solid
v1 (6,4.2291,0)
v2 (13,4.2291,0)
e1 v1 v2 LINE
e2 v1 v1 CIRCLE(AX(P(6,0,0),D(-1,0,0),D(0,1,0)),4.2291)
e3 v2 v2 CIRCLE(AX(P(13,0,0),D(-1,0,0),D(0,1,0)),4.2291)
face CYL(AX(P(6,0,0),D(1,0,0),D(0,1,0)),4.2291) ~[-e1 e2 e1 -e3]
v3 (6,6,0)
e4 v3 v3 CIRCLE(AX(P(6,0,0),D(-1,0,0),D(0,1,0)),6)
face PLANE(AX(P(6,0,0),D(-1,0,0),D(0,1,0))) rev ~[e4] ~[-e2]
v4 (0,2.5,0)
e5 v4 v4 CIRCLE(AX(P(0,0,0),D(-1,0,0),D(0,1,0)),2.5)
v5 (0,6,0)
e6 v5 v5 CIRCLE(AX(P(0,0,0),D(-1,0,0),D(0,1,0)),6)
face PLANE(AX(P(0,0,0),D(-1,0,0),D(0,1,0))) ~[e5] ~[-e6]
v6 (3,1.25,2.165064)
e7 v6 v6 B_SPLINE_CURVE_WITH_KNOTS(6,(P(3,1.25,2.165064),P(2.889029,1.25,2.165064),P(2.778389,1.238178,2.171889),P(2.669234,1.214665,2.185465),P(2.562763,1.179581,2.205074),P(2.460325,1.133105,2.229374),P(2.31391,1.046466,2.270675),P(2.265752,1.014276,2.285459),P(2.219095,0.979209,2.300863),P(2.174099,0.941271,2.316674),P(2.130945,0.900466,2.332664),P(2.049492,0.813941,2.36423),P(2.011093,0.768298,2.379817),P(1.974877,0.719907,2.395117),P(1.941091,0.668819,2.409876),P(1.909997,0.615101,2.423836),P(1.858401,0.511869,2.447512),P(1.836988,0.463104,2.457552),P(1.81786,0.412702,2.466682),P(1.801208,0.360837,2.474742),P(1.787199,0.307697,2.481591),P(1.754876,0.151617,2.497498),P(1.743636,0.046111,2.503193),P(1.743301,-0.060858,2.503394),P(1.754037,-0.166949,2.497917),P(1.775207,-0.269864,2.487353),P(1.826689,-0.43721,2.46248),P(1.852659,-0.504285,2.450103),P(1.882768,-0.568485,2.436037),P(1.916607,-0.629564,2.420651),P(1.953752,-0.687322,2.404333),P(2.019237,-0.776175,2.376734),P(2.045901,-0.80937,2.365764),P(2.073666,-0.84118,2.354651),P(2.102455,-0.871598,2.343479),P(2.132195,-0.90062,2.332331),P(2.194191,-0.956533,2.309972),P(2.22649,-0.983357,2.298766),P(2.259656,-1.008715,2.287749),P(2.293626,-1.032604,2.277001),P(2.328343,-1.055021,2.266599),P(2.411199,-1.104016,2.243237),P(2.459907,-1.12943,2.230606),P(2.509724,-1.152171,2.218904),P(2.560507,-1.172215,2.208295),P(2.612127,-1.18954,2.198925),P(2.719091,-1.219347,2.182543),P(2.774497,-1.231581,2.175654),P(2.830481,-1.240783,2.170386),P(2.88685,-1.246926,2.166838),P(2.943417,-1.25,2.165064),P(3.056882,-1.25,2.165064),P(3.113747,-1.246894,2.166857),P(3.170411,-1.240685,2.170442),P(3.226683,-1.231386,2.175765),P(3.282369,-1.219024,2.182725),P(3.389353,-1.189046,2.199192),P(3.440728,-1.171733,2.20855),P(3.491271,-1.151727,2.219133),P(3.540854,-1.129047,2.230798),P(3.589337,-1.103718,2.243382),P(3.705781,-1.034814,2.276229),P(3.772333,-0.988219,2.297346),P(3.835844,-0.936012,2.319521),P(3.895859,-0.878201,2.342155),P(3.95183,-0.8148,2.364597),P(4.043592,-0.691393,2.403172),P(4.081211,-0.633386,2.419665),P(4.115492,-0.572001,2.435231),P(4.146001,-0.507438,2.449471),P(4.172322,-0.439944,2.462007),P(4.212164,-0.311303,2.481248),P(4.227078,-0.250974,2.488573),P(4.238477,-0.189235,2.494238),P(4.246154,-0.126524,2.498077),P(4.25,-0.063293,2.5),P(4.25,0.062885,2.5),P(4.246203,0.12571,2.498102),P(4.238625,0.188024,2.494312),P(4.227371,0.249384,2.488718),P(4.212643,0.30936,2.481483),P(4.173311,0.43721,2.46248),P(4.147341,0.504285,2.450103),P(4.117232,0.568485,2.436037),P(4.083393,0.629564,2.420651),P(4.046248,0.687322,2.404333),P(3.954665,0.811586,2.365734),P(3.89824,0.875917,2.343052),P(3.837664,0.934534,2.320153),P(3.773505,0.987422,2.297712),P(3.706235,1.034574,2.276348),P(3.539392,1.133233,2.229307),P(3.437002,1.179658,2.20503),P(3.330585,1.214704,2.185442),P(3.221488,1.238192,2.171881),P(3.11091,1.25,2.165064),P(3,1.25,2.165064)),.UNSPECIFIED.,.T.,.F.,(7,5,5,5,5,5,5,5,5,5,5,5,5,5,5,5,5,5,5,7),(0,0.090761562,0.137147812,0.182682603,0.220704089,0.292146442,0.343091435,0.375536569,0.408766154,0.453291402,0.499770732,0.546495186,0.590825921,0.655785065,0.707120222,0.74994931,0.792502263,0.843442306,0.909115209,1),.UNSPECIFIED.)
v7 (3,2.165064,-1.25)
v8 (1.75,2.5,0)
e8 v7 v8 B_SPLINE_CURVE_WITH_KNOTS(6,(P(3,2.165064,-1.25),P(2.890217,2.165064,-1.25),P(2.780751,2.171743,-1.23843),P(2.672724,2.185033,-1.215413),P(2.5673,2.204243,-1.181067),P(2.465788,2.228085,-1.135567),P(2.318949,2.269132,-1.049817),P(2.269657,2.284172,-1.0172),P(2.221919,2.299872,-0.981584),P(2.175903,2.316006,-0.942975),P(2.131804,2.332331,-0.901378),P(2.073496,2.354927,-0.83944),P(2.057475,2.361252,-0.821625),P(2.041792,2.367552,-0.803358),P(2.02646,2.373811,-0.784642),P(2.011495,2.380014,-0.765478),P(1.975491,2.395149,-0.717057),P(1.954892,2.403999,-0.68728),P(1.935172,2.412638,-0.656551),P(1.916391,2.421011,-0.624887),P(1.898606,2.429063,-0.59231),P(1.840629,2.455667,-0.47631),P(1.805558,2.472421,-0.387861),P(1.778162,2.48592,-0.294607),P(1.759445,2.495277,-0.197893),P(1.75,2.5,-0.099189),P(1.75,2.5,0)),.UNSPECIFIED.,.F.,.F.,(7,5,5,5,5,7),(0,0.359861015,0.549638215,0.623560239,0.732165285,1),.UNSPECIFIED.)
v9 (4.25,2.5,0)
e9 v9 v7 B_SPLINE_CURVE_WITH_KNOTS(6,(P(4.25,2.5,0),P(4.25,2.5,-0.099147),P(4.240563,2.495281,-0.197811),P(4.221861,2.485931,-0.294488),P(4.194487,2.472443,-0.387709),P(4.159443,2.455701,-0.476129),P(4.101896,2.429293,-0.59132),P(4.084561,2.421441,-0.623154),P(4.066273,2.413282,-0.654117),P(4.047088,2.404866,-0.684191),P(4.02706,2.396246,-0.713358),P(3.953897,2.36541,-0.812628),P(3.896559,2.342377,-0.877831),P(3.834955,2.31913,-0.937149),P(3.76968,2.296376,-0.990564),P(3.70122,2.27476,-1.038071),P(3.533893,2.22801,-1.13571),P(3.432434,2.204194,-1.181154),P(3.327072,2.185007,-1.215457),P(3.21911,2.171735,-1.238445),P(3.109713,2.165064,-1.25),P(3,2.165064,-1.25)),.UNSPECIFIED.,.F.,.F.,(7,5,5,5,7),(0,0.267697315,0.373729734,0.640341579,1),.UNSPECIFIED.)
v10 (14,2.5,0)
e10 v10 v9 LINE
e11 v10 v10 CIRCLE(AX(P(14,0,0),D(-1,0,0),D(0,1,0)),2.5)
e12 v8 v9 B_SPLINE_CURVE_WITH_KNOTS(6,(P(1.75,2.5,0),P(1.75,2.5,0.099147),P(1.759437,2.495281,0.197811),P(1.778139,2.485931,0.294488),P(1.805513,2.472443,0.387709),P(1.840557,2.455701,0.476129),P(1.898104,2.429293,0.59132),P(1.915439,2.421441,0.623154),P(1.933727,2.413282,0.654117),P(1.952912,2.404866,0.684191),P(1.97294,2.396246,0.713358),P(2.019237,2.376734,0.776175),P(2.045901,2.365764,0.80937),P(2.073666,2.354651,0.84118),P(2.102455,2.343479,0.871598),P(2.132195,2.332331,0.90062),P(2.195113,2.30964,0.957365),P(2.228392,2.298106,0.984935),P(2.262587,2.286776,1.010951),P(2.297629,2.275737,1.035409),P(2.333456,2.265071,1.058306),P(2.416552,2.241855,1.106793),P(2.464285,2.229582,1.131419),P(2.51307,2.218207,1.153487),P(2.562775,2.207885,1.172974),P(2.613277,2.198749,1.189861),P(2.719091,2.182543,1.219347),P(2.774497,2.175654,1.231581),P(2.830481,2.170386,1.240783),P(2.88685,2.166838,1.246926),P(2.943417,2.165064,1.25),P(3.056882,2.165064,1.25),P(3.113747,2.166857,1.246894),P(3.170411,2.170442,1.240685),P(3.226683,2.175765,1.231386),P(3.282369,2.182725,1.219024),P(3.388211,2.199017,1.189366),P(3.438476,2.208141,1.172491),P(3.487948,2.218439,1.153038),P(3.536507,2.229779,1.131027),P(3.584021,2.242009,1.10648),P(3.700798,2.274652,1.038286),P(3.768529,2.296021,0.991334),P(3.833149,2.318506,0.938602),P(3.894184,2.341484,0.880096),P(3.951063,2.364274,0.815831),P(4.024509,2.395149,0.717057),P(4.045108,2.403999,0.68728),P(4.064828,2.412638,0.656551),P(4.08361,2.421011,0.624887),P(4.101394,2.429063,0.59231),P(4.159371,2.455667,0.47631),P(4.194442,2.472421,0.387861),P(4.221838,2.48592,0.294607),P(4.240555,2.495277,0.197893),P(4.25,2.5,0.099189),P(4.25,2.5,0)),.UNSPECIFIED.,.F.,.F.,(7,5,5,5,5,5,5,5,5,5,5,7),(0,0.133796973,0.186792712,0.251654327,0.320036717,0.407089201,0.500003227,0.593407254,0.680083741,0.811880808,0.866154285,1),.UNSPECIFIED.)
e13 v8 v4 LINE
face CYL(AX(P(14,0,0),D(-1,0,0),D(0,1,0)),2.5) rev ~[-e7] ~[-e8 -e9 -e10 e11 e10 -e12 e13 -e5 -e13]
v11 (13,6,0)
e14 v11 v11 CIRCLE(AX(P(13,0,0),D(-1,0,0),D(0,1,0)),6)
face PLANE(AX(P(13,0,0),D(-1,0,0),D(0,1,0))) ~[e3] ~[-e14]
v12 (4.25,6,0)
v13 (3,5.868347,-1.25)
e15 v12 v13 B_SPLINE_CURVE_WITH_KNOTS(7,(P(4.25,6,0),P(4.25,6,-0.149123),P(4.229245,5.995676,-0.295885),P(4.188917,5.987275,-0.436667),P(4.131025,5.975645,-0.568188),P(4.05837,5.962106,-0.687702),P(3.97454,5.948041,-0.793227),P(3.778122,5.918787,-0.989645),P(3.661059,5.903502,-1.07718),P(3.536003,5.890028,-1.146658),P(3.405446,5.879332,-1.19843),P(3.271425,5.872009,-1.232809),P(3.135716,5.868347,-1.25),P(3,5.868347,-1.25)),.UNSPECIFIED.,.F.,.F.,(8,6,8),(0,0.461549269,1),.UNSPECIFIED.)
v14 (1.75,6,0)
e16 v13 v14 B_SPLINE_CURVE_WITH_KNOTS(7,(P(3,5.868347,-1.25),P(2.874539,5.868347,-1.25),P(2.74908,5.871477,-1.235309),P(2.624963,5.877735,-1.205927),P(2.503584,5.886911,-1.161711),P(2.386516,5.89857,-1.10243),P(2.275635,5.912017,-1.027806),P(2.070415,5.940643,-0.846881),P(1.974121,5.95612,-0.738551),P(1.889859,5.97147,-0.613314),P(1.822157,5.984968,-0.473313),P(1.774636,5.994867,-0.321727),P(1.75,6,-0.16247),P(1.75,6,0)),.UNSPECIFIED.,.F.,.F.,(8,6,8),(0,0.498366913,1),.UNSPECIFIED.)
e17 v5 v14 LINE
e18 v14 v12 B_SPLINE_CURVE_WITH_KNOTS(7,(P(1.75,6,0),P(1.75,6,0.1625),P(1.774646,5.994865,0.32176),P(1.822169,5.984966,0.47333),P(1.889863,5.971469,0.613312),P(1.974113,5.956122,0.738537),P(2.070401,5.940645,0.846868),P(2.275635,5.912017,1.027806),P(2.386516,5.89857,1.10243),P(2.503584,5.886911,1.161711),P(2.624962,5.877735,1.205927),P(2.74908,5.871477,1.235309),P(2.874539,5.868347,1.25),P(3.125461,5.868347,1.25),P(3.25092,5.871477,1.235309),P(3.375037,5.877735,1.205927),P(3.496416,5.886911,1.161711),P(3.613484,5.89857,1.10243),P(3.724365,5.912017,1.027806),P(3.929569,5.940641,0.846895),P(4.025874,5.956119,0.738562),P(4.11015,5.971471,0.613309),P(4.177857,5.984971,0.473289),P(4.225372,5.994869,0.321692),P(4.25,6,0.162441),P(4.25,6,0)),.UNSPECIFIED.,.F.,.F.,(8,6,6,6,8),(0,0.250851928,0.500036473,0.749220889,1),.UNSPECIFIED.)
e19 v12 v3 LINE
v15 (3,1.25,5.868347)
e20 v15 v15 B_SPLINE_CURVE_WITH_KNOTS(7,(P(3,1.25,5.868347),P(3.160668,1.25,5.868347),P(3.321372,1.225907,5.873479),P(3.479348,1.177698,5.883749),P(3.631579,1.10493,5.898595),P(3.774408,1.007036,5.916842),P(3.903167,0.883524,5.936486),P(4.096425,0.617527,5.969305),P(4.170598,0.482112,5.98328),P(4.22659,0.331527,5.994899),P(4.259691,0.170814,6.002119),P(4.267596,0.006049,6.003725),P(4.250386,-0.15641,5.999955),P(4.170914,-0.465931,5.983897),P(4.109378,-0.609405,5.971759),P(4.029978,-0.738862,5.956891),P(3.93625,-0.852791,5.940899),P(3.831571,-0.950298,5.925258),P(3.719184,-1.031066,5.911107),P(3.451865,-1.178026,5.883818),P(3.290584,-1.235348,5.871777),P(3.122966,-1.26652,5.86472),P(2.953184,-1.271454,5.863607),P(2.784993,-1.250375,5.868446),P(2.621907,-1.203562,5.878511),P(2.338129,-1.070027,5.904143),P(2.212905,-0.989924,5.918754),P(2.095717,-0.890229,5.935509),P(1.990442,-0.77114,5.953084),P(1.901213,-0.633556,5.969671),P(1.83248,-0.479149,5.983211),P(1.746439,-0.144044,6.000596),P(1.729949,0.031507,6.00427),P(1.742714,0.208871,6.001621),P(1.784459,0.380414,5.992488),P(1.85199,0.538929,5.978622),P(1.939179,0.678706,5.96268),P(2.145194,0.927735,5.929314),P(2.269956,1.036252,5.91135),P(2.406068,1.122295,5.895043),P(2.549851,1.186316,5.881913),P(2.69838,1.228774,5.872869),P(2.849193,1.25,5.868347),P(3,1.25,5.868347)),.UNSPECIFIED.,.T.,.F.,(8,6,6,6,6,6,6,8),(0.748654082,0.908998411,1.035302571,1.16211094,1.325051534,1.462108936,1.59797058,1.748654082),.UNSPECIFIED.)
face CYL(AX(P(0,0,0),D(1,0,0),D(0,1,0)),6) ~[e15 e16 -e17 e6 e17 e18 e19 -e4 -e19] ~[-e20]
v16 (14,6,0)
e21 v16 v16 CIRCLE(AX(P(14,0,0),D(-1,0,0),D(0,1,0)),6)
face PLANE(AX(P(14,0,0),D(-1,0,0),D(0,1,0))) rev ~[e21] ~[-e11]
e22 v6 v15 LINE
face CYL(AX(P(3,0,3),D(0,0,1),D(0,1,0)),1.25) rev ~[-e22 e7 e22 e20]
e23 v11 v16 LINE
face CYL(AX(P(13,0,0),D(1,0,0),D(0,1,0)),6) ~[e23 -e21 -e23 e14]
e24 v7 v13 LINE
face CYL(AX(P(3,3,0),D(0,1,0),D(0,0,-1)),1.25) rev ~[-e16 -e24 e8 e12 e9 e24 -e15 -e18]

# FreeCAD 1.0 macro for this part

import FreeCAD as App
import Part
import Sketcher

V = App.Vector
Q = App.Units.Quantity

doc = App.newDocument("Part")
body = doc.addObject("PartDesign::Body", "Body")

sketch1 = body.newObject("Sketcher::SketchObject", "Sketch")
sketch1.AttachmentSupport = (doc.getObject("XY_Plane"), [""])
sketch1.MapMode = "FlatFace"
sketch1.addGeometry([
    Part.LineSegment(V(0, 6, 0), V(0, 2.5, 0)),
    Part.LineSegment(V(0, 2.5, 0), V(14, 2.5, 0)),
    Part.LineSegment(V(14, 2.5, 0), V(14, 6, 0)),
    Part.LineSegment(V(14, 6, 0), V(13, 6, 0)),
    Part.LineSegment(V(13, 6, 0), V(13, 4.2291, 0)),
    Part.LineSegment(V(13, 4.2291, 0), V(6, 4.2291, 0)),
    Part.LineSegment(V(6, 4.2291, 0), V(6, 6, 0)),
    Part.LineSegment(V(6, 6, 0), V(0, 6, 0)),
], False)
sketch1.addConstraint([
    Sketcher.Constraint("Coincident", 0, 2, 1, 1),
    Sketcher.Constraint("Coincident", 1, 2, 2, 1),
    Sketcher.Constraint("Coincident", 2, 2, 3, 1),
    Sketcher.Constraint("Coincident", 3, 2, 4, 1),
    Sketcher.Constraint("Coincident", 4, 2, 5, 1),
    Sketcher.Constraint("Coincident", 5, 2, 6, 1),
    Sketcher.Constraint("Coincident", 6, 2, 7, 1),
    Sketcher.Constraint("Coincident", 7, 2, 0, 1),
    Sketcher.Constraint("Vertical", 0),
    Sketcher.Constraint("Horizontal", 1),
    Sketcher.Constraint("Vertical", 2),
    Sketcher.Constraint("Horizontal", 3),
    Sketcher.Constraint("Vertical", 4),
    Sketcher.Constraint("Horizontal", 5),
    Sketcher.Constraint("Vertical", 6),
    Sketcher.Constraint("Horizontal", 7),
    Sketcher.Constraint("PointOnObject", 0, 2, -2),
    Sketcher.Constraint("Horizontal", 3, 2, 6, 2),
    Sketcher.Constraint("DistanceX", 1, 1, 1, 2, Q("14 mm")),
    Sketcher.Constraint("DistanceX", 3, 2, 3, 1, Q("1 mm")),
    Sketcher.Constraint("DistanceX", 5, 2, 5, 1, Q("7 mm")),
    Sketcher.Constraint("DistanceY", 0, 2, 0, 1, Q("3.5 mm")),
    Sketcher.Constraint("DistanceY", -1, 1, 2, 2, Q("6 mm")),
    Sketcher.Constraint("DistanceY", 4, 2, 4, 1, Q("1.7709 mm")),
])
revolution = body.newObject("PartDesign::Revolution", "Revolution")
revolution.Profile = sketch1
revolution.ReferenceAxis = (sketch1, ["H_Axis"])
revolution.Angle = 360

sketch2 = body.newObject("Sketcher::SketchObject", "Sketch001")
sketch2.AttachmentSupport = (doc.getObject("YZ_Plane"), [""])
sketch2.MapMode = "FlatFace"
sketch2.AttachmentOffset = App.Placement(V(0, 0, 3), App.Rotation())
sketch2.addGeometry([
    Part.LineSegment(V(6, 0, 0), V(0, 0, 0)),
    Part.LineSegment(V(0, 0, 0), V(0, -1.25, 0)),
    Part.LineSegment(V(0, -1.25, 0), V(6, -1.25, 0)),
    Part.LineSegment(V(6, -1.25, 0), V(6, 0, 0)),
], False)
sketch2.addConstraint([
    Sketcher.Constraint("Coincident", 0, 2, 1, 1),
    Sketcher.Constraint("Coincident", 1, 2, 2, 1),
    Sketcher.Constraint("Coincident", 2, 2, 3, 1),
    Sketcher.Constraint("Coincident", 3, 2, 0, 1),
    Sketcher.Constraint("Horizontal", 0),
    Sketcher.Constraint("Vertical", 1),
    Sketcher.Constraint("Horizontal", 2),
    Sketcher.Constraint("Vertical", 3),
    Sketcher.Constraint("Coincident", 0, 2, -1, 1),
    Sketcher.Constraint("DistanceX", 0, 2, 0, 1, Q("6 mm")),
    Sketcher.Constraint("DistanceY", 1, 2, 1, 1, Q("1.25 mm")),
])
groove = body.newObject("PartDesign::Groove", "Groove")
groove.Profile = sketch2
groove.ReferenceAxis = (sketch2, ["H_Axis"])
groove.Angle = 360

sketch3 = body.newObject("Sketcher::SketchObject", "Sketch002")
sketch3.AttachmentSupport = (doc.getObject("YZ_Plane"), [""])
sketch3.MapMode = "FlatFace"
sketch3.AttachmentOffset = App.Placement(V(0, 0, 3), App.Rotation())
sketch3.addGeometry([
    Part.LineSegment(V(0, 6, 0), V(0, 0, 0)),
    Part.LineSegment(V(0, 0, 0), V(1.25, 0, 0)),
    Part.LineSegment(V(1.25, 0, 0), V(1.25, 6, 0)),
    Part.LineSegment(V(1.25, 6, 0), V(0, 6, 0)),
], False)
sketch3.addConstraint([
    Sketcher.Constraint("Coincident", 0, 2, 1, 1),
    Sketcher.Constraint("Coincident", 1, 2, 2, 1),
    Sketcher.Constraint("Coincident", 2, 2, 3, 1),
    Sketcher.Constraint("Coincident", 3, 2, 0, 1),
    Sketcher.Constraint("Vertical", 0),
    Sketcher.Constraint("Horizontal", 1),
    Sketcher.Constraint("Vertical", 2),
    Sketcher.Constraint("Horizontal", 3),
    Sketcher.Constraint("Coincident", 0, 2, -1, 1),
    Sketcher.Constraint("DistanceY", 0, 2, 0, 1, Q("6 mm")),
    Sketcher.Constraint("DistanceX", 1, 1, 1, 2, Q("1.25 mm")),
])
groove2 = body.newObject("PartDesign::Groove", "Groove001")
groove2.Profile = sketch3
groove2.ReferenceAxis = (sketch3, ["V_Axis"])
groove2.Angle = 360

doc.recompute()
